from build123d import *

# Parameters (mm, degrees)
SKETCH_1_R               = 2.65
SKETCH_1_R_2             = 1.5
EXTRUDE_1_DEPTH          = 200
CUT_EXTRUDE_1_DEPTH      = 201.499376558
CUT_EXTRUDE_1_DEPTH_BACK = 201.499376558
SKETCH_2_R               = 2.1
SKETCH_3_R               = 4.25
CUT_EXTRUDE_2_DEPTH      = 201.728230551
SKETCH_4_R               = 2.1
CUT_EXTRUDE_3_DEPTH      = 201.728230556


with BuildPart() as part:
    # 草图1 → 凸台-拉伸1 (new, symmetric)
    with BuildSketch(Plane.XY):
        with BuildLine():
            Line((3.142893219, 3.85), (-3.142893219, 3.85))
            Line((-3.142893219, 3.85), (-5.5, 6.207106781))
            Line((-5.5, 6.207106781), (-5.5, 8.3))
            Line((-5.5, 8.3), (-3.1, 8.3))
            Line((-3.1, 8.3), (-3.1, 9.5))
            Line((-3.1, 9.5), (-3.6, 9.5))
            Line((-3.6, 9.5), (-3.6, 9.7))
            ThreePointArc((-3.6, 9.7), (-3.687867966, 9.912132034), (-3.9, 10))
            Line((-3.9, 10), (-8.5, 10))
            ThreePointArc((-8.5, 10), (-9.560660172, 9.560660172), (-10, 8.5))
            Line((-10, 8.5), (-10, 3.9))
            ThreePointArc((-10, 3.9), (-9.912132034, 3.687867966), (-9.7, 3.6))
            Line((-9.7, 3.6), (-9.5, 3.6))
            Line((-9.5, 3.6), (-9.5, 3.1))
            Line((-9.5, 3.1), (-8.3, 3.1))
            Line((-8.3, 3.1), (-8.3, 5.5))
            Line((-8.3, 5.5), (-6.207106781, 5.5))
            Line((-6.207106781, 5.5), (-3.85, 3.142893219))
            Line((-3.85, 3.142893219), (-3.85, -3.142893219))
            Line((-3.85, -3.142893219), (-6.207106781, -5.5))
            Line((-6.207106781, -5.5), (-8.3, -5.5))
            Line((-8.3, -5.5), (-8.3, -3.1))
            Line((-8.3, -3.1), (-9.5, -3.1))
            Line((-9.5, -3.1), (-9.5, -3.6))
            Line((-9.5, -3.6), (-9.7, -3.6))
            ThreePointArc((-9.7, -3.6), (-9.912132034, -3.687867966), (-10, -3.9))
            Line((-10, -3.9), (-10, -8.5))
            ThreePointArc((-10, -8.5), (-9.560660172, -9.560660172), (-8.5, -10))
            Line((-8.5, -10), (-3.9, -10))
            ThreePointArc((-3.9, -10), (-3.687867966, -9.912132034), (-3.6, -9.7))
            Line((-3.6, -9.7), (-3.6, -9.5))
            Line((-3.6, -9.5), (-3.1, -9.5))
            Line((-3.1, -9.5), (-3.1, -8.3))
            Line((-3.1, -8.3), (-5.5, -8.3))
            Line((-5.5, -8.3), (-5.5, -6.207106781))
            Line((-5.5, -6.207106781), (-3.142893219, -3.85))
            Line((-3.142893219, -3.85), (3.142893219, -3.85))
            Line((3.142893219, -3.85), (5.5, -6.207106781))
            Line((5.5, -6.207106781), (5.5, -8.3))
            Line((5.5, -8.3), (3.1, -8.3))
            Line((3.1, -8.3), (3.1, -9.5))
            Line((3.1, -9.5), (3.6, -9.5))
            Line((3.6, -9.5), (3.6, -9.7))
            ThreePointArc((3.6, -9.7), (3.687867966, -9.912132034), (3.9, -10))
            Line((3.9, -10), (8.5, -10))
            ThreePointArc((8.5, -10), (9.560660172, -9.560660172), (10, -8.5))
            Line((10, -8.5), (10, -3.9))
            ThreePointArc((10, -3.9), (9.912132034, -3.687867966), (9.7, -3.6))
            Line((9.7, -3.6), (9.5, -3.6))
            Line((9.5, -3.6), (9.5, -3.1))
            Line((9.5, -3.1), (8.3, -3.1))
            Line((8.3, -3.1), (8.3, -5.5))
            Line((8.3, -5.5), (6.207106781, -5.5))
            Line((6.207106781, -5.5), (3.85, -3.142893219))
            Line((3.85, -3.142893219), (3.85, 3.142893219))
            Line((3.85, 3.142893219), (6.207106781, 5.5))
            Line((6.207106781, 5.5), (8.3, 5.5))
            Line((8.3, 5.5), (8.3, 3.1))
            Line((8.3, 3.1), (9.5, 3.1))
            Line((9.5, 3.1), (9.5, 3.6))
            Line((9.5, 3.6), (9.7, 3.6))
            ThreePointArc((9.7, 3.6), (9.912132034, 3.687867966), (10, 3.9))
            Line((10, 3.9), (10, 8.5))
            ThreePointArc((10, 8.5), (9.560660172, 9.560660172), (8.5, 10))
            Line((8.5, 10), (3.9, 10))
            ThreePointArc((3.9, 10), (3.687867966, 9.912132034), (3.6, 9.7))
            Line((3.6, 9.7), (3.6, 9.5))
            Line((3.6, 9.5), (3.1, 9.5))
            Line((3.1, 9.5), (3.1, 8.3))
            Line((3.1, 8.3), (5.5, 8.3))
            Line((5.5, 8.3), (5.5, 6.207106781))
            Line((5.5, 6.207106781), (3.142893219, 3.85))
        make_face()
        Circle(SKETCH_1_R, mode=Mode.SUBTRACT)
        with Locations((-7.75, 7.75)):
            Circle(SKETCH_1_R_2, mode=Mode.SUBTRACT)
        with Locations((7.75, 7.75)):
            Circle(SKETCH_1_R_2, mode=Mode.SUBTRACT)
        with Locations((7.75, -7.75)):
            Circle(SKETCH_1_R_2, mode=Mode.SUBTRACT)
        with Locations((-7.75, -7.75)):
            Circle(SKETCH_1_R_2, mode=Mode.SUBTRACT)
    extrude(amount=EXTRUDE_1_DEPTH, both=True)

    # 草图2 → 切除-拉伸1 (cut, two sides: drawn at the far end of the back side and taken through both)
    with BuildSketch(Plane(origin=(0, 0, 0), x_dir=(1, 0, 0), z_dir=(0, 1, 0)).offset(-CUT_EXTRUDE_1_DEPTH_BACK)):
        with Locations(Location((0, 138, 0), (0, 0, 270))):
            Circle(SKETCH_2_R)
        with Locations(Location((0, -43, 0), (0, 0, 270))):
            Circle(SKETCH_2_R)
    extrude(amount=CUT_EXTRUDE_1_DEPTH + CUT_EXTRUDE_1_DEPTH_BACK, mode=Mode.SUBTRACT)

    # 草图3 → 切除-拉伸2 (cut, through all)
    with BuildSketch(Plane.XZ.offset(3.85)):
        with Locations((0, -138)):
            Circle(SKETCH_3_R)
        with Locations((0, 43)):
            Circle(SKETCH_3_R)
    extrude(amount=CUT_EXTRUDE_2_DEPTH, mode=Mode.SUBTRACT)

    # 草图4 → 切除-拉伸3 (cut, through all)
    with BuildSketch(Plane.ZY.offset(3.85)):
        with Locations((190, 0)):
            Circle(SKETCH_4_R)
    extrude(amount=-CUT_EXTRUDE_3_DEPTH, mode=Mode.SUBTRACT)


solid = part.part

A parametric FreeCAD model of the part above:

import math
import FreeCAD as App
import Part
import Sketcher

doc = App.newDocument("Part")
params = doc.addObject("Spreadsheet::Sheet", "Params")
for row, (alias, value) in enumerate([
    ("sketch1_diameter", "3 mm"),
    ("sketch1_diameter2", "5.3 mm"),
    ("sketch1_radius", "0.3 mm"),
    ("sketch1_width", "2.4 mm"),
    ("sketch1_width2", "0.5 mm"),
    ("pad1_length", "400 mm"),
    ("sketch2_diameter", "4.2 mm"),
    ("sketch3_diameter", "8.5 mm"),
    ("sketch4_diameter", "4.2 mm"),
], start=1):
    params.set(f"A{row}", alias)
    params.set(f"B{row}", "=" + value)
    params.setAlias(f"B{row}", alias)

body = doc.addObject("PartDesign::Body", "Body")

sketch1 = body.newObject("Sketcher::SketchObject", "Sketch")
sketch1.AttachmentSupport = (doc.getObject("XY_Plane"), [""])
sketch1.MapMode = "FlatFace"
sketch1.addGeometry(Part.LineSegment(App.Vector(3.142893, 3.85, 0), App.Vector(-3.142893, 3.85, 0)), False)
sketch1.addGeometry(Part.LineSegment(App.Vector(-3.142893, 3.85, 0), App.Vector(-5.5, 6.207107, 0)), False)
sketch1.addGeometry(Part.LineSegment(App.Vector(-5.5, 6.207107, 0), App.Vector(-5.5, 8.3, 0)), False)
sketch1.addGeometry(Part.LineSegment(App.Vector(-5.5, 8.3, 0), App.Vector(-3.1, 8.3, 0)), False)
sketch1.addGeometry(Part.LineSegment(App.Vector(-3.1, 8.3, 0), App.Vector(-3.1, 9.5, 0)), False)
sketch1.addGeometry(Part.LineSegment(App.Vector(-3.1, 9.5, 0), App.Vector(-3.6, 9.5, 0)), False)
sketch1.addGeometry(Part.LineSegment(App.Vector(-3.6, 9.5, 0), App.Vector(-3.6, 9.7, 0)), False)
sketch1.addGeometry(Part.ArcOfCircle(Part.Circle(App.Vector(-3.9, 9.7, 0), App.Vector(0, 0, 1), 0.3), math.radians(0), math.radians(90)), False)
sketch1.addGeometry(Part.LineSegment(App.Vector(-3.9, 10, 0), App.Vector(-8.5, 10, 0)), False)
sketch1.addGeometry(Part.ArcOfCircle(Part.Circle(App.Vector(-8.5, 8.5, 0), App.Vector(0, 0, 1), 1.5), math.radians(90), math.radians(180)), False)
sketch1.addGeometry(Part.LineSegment(App.Vector(-10, 8.5, 0), App.Vector(-10, 3.9, 0)), False)
sketch1.addGeometry(Part.ArcOfCircle(Part.Circle(App.Vector(-9.7, 3.9, 0), App.Vector(0, 0, 1), 0.3), math.radians(-180), math.radians(-90)), False)
sketch1.addGeometry(Part.LineSegment(App.Vector(-9.7, 3.6, 0), App.Vector(-9.5, 3.6, 0)), False)
sketch1.addGeometry(Part.LineSegment(App.Vector(-9.5, 3.6, 0), App.Vector(-9.5, 3.1, 0)), False)
sketch1.addGeometry(Part.LineSegment(App.Vector(-9.5, 3.1, 0), App.Vector(-8.3, 3.1, 0)), False)
sketch1.addGeometry(Part.LineSegment(App.Vector(-8.3, 3.1, 0), App.Vector(-8.3, 5.5, 0)), False)
sketch1.addGeometry(Part.LineSegment(App.Vector(-8.3, 5.5, 0), App.Vector(-6.207107, 5.5, 0)), False)
sketch1.addGeometry(Part.LineSegment(App.Vector(-6.207107, 5.5, 0), App.Vector(-3.85, 3.142893, 0)), False)
sketch1.addGeometry(Part.LineSegment(App.Vector(-3.85, 3.142893, 0), App.Vector(-3.85, -3.142893, 0)), False)
sketch1.addGeometry(Part.LineSegment(App.Vector(-3.85, -3.142893, 0), App.Vector(-6.207107, -5.5, 0)), False)
sketch1.addGeometry(Part.LineSegment(App.Vector(-6.207107, -5.5, 0), App.Vector(-8.3, -5.5, 0)), False)
sketch1.addGeometry(Part.LineSegment(App.Vector(-8.3, -5.5, 0), App.Vector(-8.3, -3.1, 0)), False)
sketch1.addGeometry(Part.LineSegment(App.Vector(-8.3, -3.1, 0), App.Vector(-9.5, -3.1, 0)), False)
sketch1.addGeometry(Part.LineSegment(App.Vector(-9.5, -3.1, 0), App.Vector(-9.5, -3.6, 0)), False)
sketch1.addGeometry(Part.LineSegment(App.Vector(-9.5, -3.6, 0), App.Vector(-9.7, -3.6, 0)), False)
sketch1.addGeometry(Part.ArcOfCircle(Part.Circle(App.Vector(-9.7, -3.9, 0), App.Vector(0, 0, 1), 0.3), math.radians(90), math.radians(180)), False)
sketch1.addGeometry(Part.LineSegment(App.Vector(-10, -3.9, 0), App.Vector(-10, -8.5, 0)), False)
sketch1.addGeometry(Part.ArcOfCircle(Part.Circle(App.Vector(-8.5, -8.5, 0), App.Vector(0, 0, 1), 1.5), math.radians(180), math.radians(270)), False)
sketch1.addGeometry(Part.LineSegment(App.Vector(-8.5, -10, 0), App.Vector(-3.9, -10, 0)), False)
sketch1.addGeometry(Part.ArcOfCircle(Part.Circle(App.Vector(-3.9, -9.7, 0), App.Vector(0, 0, 1), 0.3), math.radians(-90), math.radians(0)), False)
sketch1.addGeometry(Part.LineSegment(App.Vector(-3.6, -9.7, 0), App.Vector(-3.6, -9.5, 0)), False)
sketch1.addGeometry(Part.LineSegment(App.Vector(-3.6, -9.5, 0), App.Vector(-3.1, -9.5, 0)), False)
sketch1.addGeometry(Part.LineSegment(App.Vector(-3.1, -9.5, 0), App.Vector(-3.1, -8.3, 0)), False)
sketch1.addGeometry(Part.LineSegment(App.Vector(-3.1, -8.3, 0), App.Vector(-5.5, -8.3, 0)), False)
sketch1.addGeometry(Part.LineSegment(App.Vector(-5.5, -8.3, 0), App.Vector(-5.5, -6.207107, 0)), False)
sketch1.addGeometry(Part.LineSegment(App.Vector(-5.5, -6.207107, 0), App.Vector(-3.142893, -3.85, 0)), False)
sketch1.addGeometry(Part.LineSegment(App.Vector(-3.142893, -3.85, 0), App.Vector(3.142893, -3.85, 0)), False)
sketch1.addGeometry(Part.LineSegment(App.Vector(3.142893, -3.85, 0), App.Vector(5.5, -6.207107, 0)), False)
sketch1.addGeometry(Part.LineSegment(App.Vector(5.5, -6.207107, 0), App.Vector(5.5, -8.3, 0)), False)
sketch1.addGeometry(Part.LineSegment(App.Vector(5.5, -8.3, 0), App.Vector(3.1, -8.3, 0)), False)
sketch1.addGeometry(Part.LineSegment(App.Vector(3.1, -8.3, 0), App.Vector(3.1, -9.5, 0)), False)
sketch1.addGeometry(Part.LineSegment(App.Vector(3.1, -9.5, 0), App.Vector(3.6, -9.5, 0)), False)
sketch1.addGeometry(Part.LineSegment(App.Vector(3.6, -9.5, 0), App.Vector(3.6, -9.7, 0)), False)
sketch1.addGeometry(Part.ArcOfCircle(Part.Circle(App.Vector(3.9, -9.7, 0), App.Vector(0, 0, 1), 0.3), math.radians(-180), math.radians(-90)), False)
sketch1.addGeometry(Part.LineSegment(App.Vector(3.9, -10, 0), App.Vector(8.5, -10, 0)), False)
sketch1.addGeometry(Part.ArcOfCircle(Part.Circle(App.Vector(8.5, -8.5, 0), App.Vector(0, 0, 1), 1.5), math.radians(-90), math.radians(0)), False)
sketch1.addGeometry(Part.LineSegment(App.Vector(10, -8.5, 0), App.Vector(10, -3.9, 0)), False)
sketch1.addGeometry(Part.ArcOfCircle(Part.Circle(App.Vector(9.7, -3.9, 0), App.Vector(0, 0, 1), 0.3), math.radians(0), math.radians(90)), False)
sketch1.addGeometry(Part.LineSegment(App.Vector(9.7, -3.6, 0), App.Vector(9.5, -3.6, 0)), False)
sketch1.addGeometry(Part.LineSegment(App.Vector(9.5, -3.6, 0), App.Vector(9.5, -3.1, 0)), False)
sketch1.addGeometry(Part.LineSegment(App.Vector(9.5, -3.1, 0), App.Vector(8.3, -3.1, 0)), False)
sketch1.addGeometry(Part.LineSegment(App.Vector(8.3, -3.1, 0), App.Vector(8.3, -5.5, 0)), False)
sketch1.addGeometry(Part.LineSegment(App.Vector(8.3, -5.5, 0), App.Vector(6.207107, -5.5, 0)), False)
sketch1.addGeometry(Part.LineSegment(App.Vector(6.207107, -5.5, 0), App.Vector(3.85, -3.142893, 0)), False)
sketch1.addGeometry(Part.LineSegment(App.Vector(3.85, -3.142893, 0), App.Vector(3.85, 3.142893, 0)), False)
sketch1.addGeometry(Part.LineSegment(App.Vector(3.85, 3.142893, 0), App.Vector(6.207107, 5.5, 0)), False)
sketch1.addGeometry(Part.LineSegment(App.Vector(6.207107, 5.5, 0), App.Vector(8.3, 5.5, 0)), False)
sketch1.addGeometry(Part.LineSegment(App.Vector(8.3, 5.5, 0), App.Vector(8.3, 3.1, 0)), False)
sketch1.addGeometry(Part.LineSegment(App.Vector(8.3, 3.1, 0), App.Vector(9.5, 3.1, 0)), False)
sketch1.addGeometry(Part.LineSegment(App.Vector(9.5, 3.1, 0), App.Vector(9.5, 3.6, 0)), False)
sketch1.addGeometry(Part.LineSegment(App.Vector(9.5, 3.6, 0), App.Vector(9.7, 3.6, 0)), False)
sketch1.addGeometry(Part.ArcOfCircle(Part.Circle(App.Vector(9.7, 3.9, 0), App.Vector(0, 0, 1), 0.3), math.radians(-90), math.radians(0)), False)
sketch1.addGeometry(Part.LineSegment(App.Vector(10, 3.9, 0), App.Vector(10, 8.5, 0)), False)
sketch1.addGeometry(Part.ArcOfCircle(Part.Circle(App.Vector(8.5, 8.5, 0), App.Vector(0, 0, 1), 1.5), math.radians(0), math.radians(90)), False)
sketch1.addGeometry(Part.LineSegment(App.Vector(8.5, 10, 0), App.Vector(3.9, 10, 0)), False)
sketch1.addGeometry(Part.ArcOfCircle(Part.Circle(App.Vector(3.9, 9.7, 0), App.Vector(0, 0, 1), 0.3), math.radians(90), math.radians(180)), False)
sketch1.addGeometry(Part.LineSegment(App.Vector(3.6, 9.7, 0), App.Vector(3.6, 9.5, 0)), False)
sketch1.addGeometry(Part.LineSegment(App.Vector(3.6, 9.5, 0), App.Vector(3.1, 9.5, 0)), False)
sketch1.addGeometry(Part.LineSegment(App.Vector(3.1, 9.5, 0), App.Vector(3.1, 8.3, 0)), False)
sketch1.addGeometry(Part.LineSegment(App.Vector(3.1, 8.3, 0), App.Vector(5.5, 8.3, 0)), False)
sketch1.addGeometry(Part.LineSegment(App.Vector(5.5, 8.3, 0), App.Vector(5.5, 6.207107, 0)), False)
sketch1.addGeometry(Part.LineSegment(App.Vector(5.5, 6.207107, 0), App.Vector(3.142893, 3.85, 0)), False)
sketch1.addGeometry(Part.Circle(App.Vector(-7.75, -7.75, 0), App.Vector(0, 0, 1), 1.5), False)
sketch1.addGeometry(Part.Circle(App.Vector(7.75, -7.75, 0), App.Vector(0, 0, 1), 1.5), False)
sketch1.addGeometry(Part.Circle(App.Vector(-7.75, 7.75, 0), App.Vector(0, 0, 1), 1.5), False)
sketch1.addGeometry(Part.Circle(App.Vector(0, 0, 0), App.Vector(0, 0, 1), 2.65), False)
sketch1.addGeometry(Part.Circle(App.Vector(7.75, 7.75, 0), App.Vector(0, 0, 1), 1.5), False)
sketch1.addConstraint(Sketcher.Constraint("Coincident", 0, 2, 1, 1))
sketch1.addConstraint(Sketcher.Constraint("Coincident", 1, 2, 2, 1))
sketch1.addConstraint(Sketcher.Constraint("Coincident", 2, 2, 3, 1))
sketch1.addConstraint(Sketcher.Constraint("Coincident", 3, 2, 4, 1))
sketch1.addConstraint(Sketcher.Constraint("Coincident", 4, 2, 5, 1))
sketch1.addConstraint(Sketcher.Constraint("Coincident", 5, 2, 6, 1))
sketch1.addConstraint(Sketcher.Constraint("Tangent", 6, 2, 7, 1))
sketch1.addConstraint(Sketcher.Constraint("Tangent", 7, 2, 8, 1))
sketch1.addConstraint(Sketcher.Constraint("Tangent", 8, 2, 9, 1))
sketch1.addConstraint(Sketcher.Constraint("Tangent", 9, 2, 10, 1))
sketch1.addConstraint(Sketcher.Constraint("Tangent", 10, 2, 11, 1))
sketch1.addConstraint(Sketcher.Constraint("Tangent", 11, 2, 12, 1))
sketch1.addConstraint(Sketcher.Constraint("Coincident", 12, 2, 13, 1))
sketch1.addConstraint(Sketcher.Constraint("Coincident", 13, 2, 14, 1))
sketch1.addConstraint(Sketcher.Constraint("Coincident", 14, 2, 15, 1))
sketch1.addConstraint(Sketcher.Constraint("Coincident", 15, 2, 16, 1))
sketch1.addConstraint(Sketcher.Constraint("Coincident", 16, 2, 17, 1))
sketch1.addConstraint(Sketcher.Constraint("Coincident", 17, 2, 18, 1))
sketch1.addConstraint(Sketcher.Constraint("Coincident", 18, 2, 19, 1))
sketch1.addConstraint(Sketcher.Constraint("Coincident", 19, 2, 20, 1))
sketch1.addConstraint(Sketcher.Constraint("Coincident", 20, 2, 21, 1))
sketch1.addConstraint(Sketcher.Constraint("Coincident", 21, 2, 22, 1))
sketch1.addConstraint(Sketcher.Constraint("Coincident", 22, 2, 23, 1))
sketch1.addConstraint(Sketcher.Constraint("Coincident", 23, 2, 24, 1))
sketch1.addConstraint(Sketcher.Constraint("Tangent", 24, 2, 25, 1))
sketch1.addConstraint(Sketcher.Constraint("Tangent", 25, 2, 26, 1))
sketch1.addConstraint(Sketcher.Constraint("Tangent", 26, 2, 27, 1))
sketch1.addConstraint(Sketcher.Constraint("Tangent", 27, 2, 28, 1))
sketch1.addConstraint(Sketcher.Constraint("Tangent", 28, 2, 29, 1))
sketch1.addConstraint(Sketcher.Constraint("Tangent", 29, 2, 30, 1))
sketch1.addConstraint(Sketcher.Constraint("Coincident", 30, 2, 31, 1))
sketch1.addConstraint(Sketcher.Constraint("Coincident", 31, 2, 32, 1))
sketch1.addConstraint(Sketcher.Constraint("Coincident", 32, 2, 33, 1))
sketch1.addConstraint(Sketcher.Constraint("Coincident", 33, 2, 34, 1))
sketch1.addConstraint(Sketcher.Constraint("Coincident", 34, 2, 35, 1))
sketch1.addConstraint(Sketcher.Constraint("Coincident", 35, 2, 36, 1))
sketch1.addConstraint(Sketcher.Constraint("Coincident", 36, 2, 37, 1))
sketch1.addConstraint(Sketcher.Constraint("Coincident", 37, 2, 38, 1))
sketch1.addConstraint(Sketcher.Constraint("Coincident", 38, 2, 39, 1))
sketch1.addConstraint(Sketcher.Constraint("Coincident", 39, 2, 40, 1))
sketch1.addConstraint(Sketcher.Constraint("Coincident", 40, 2, 41, 1))
sketch1.addConstraint(Sketcher.Constraint("Coincident", 41, 2, 42, 1))
sketch1.addConstraint(Sketcher.Constraint("Tangent", 42, 2, 43, 1))
sketch1.addConstraint(Sketcher.Constraint("Tangent", 43, 2, 44, 1))
sketch1.addConstraint(Sketcher.Constraint("Tangent", 44, 2, 45, 1))
sketch1.addConstraint(Sketcher.Constraint("Tangent", 45, 2, 46, 1))
sketch1.addConstraint(Sketcher.Constraint("Tangent", 46, 2, 47, 1))
sketch1.addConstraint(Sketcher.Constraint("Tangent", 47, 2, 48, 1))
sketch1.addConstraint(Sketcher.Constraint("Coincident", 48, 2, 49, 1))
sketch1.addConstraint(Sketcher.Constraint("Coincident", 49, 2, 50, 1))
sketch1.addConstraint(Sketcher.Constraint("Coincident", 50, 2, 51, 1))
sketch1.addConstraint(Sketcher.Constraint("Coincident", 51, 2, 52, 1))
sketch1.addConstraint(Sketcher.Constraint("Coincident", 52, 2, 53, 1))
sketch1.addConstraint(Sketcher.Constraint("Coincident", 53, 2, 54, 1))
sketch1.addConstraint(Sketcher.Constraint("Coincident", 54, 2, 55, 1))
sketch1.addConstraint(Sketcher.Constraint("Coincident", 55, 2, 56, 1))
sketch1.addConstraint(Sketcher.Constraint("Coincident", 56, 2, 57, 1))
sketch1.addConstraint(Sketcher.Constraint("Coincident", 57, 2, 58, 1))
sketch1.addConstraint(Sketcher.Constraint("Coincident", 58, 2, 59, 1))
sketch1.addConstraint(Sketcher.Constraint("Coincident", 59, 2, 60, 1))
sketch1.addConstraint(Sketcher.Constraint("Tangent", 60, 2, 61, 1))
sketch1.addConstraint(Sketcher.Constraint("Tangent", 61, 2, 62, 1))
sketch1.addConstraint(Sketcher.Constraint("Tangent", 62, 2, 63, 1))
sketch1.addConstraint(Sketcher.Constraint("Tangent", 63, 2, 64, 1))
sketch1.addConstraint(Sketcher.Constraint("Tangent", 64, 2, 65, 1))
sketch1.addConstraint(Sketcher.Constraint("Tangent", 65, 2, 66, 1))
sketch1.addConstraint(Sketcher.Constraint("Coincident", 66, 2, 67, 1))
sketch1.addConstraint(Sketcher.Constraint("Coincident", 67, 2, 68, 1))
sketch1.addConstraint(Sketcher.Constraint("Coincident", 68, 2, 69, 1))
sketch1.addConstraint(Sketcher.Constraint("Coincident", 69, 2, 70, 1))
sketch1.addConstraint(Sketcher.Constraint("Coincident", 70, 2, 71, 1))
sketch1.addConstraint(Sketcher.Constraint("Coincident", 71, 2, 0, 1))
sketch1.addConstraint(Sketcher.Constraint("Horizontal", 0))
sketch1.addConstraint(Sketcher.Constraint("Vertical", 2))
sketch1.addConstraint(Sketcher.Constraint("Horizontal", 3))
sketch1.addConstraint(Sketcher.Constraint("Vertical", 4))
sketch1.addConstraint(Sketcher.Constraint("Horizontal", 5))
sketch1.addConstraint(Sketcher.Constraint("Vertical", 6))
sketch1.addConstraint(Sketcher.Constraint("Horizontal", 8))
sketch1.addConstraint(Sketcher.Constraint("Vertical", 10))
sketch1.addConstraint(Sketcher.Constraint("Horizontal", 12))
sketch1.addConstraint(Sketcher.Constraint("Vertical", 13))
sketch1.addConstraint(Sketcher.Constraint("Horizontal", 14))
sketch1.addConstraint(Sketcher.Constraint("Vertical", 15))
sketch1.addConstraint(Sketcher.Constraint("Horizontal", 16))
sketch1.addConstraint(Sketcher.Constraint("Vertical", 18))
sketch1.addConstraint(Sketcher.Constraint("Horizontal", 20))
sketch1.addConstraint(Sketcher.Constraint("Vertical", 21))
sketch1.addConstraint(Sketcher.Constraint("Horizontal", 22))
sketch1.addConstraint(Sketcher.Constraint("Vertical", 23))
sketch1.addConstraint(Sketcher.Constraint("Horizontal", 24))
sketch1.addConstraint(Sketcher.Constraint("Vertical", 26))
sketch1.addConstraint(Sketcher.Constraint("Horizontal", 28))
sketch1.addConstraint(Sketcher.Constraint("Vertical", 30))
sketch1.addConstraint(Sketcher.Constraint("Horizontal", 31))
sketch1.addConstraint(Sketcher.Constraint("Vertical", 32))
sketch1.addConstraint(Sketcher.Constraint("Horizontal", 33))
sketch1.addConstraint(Sketcher.Constraint("Vertical", 34))
sketch1.addConstraint(Sketcher.Constraint("Horizontal", 36))
sketch1.addConstraint(Sketcher.Constraint("Vertical", 38))
sketch1.addConstraint(Sketcher.Constraint("Horizontal", 39))
sketch1.addConstraint(Sketcher.Constraint("Vertical", 40))
sketch1.addConstraint(Sketcher.Constraint("Horizontal", 41))
sketch1.addConstraint(Sketcher.Constraint("Vertical", 42))
sketch1.addConstraint(Sketcher.Constraint("Horizontal", 44))
sketch1.addConstraint(Sketcher.Constraint("Vertical", 46))
sketch1.addConstraint(Sketcher.Constraint("Horizontal", 48))
sketch1.addConstraint(Sketcher.Constraint("Vertical", 49))
sketch1.addConstraint(Sketcher.Constraint("Horizontal", 50))
sketch1.addConstraint(Sketcher.Constraint("Vertical", 51))
sketch1.addConstraint(Sketcher.Constraint("Horizontal", 52))
sketch1.addConstraint(Sketcher.Constraint("Vertical", 54))
sketch1.addConstraint(Sketcher.Constraint("Horizontal", 56))
sketch1.addConstraint(Sketcher.Constraint("Vertical", 57))
sketch1.addConstraint(Sketcher.Constraint("Horizontal", 58))
sketch1.addConstraint(Sketcher.Constraint("Vertical", 59))
sketch1.addConstraint(Sketcher.Constraint("Horizontal", 60))
sketch1.addConstraint(Sketcher.Constraint("Vertical", 62))
sketch1.addConstraint(Sketcher.Constraint("Horizontal", 64))
sketch1.addConstraint(Sketcher.Constraint("Vertical", 66))
sketch1.addConstraint(Sketcher.Constraint("Horizontal", 67))
sketch1.addConstraint(Sketcher.Constraint("Vertical", 68))
sketch1.addConstraint(Sketcher.Constraint("Horizontal", 69))
sketch1.addConstraint(Sketcher.Constraint("Vertical", 70))
sketch1.addConstraint(Sketcher.Constraint("Coincident", 75, 3, -1, 1))
sketch1.addConstraint(Sketcher.Constraint("Equal", 7, 11))
sketch1.addConstraint(Sketcher.Constraint("Equal", 11, 25))
sketch1.addConstraint(Sketcher.Constraint("Equal", 9, 27))
sketch1.addConstraint(Sketcher.Constraint("Equal", 25, 29))
sketch1.addConstraint(Sketcher.Constraint("Equal", 29, 43))
sketch1.addConstraint(Sketcher.Constraint("Equal", 27, 45))
sketch1.addConstraint(Sketcher.Constraint("Equal", 43, 47))
sketch1.addConstraint(Sketcher.Constraint("Equal", 47, 61))
sketch1.addConstraint(Sketcher.Constraint("Equal", 45, 63))
sketch1.addConstraint(Sketcher.Constraint("Equal", 61, 65))
sketch1.addConstraint(Sketcher.Constraint("Equal", 63, 72))
sketch1.addConstraint(Sketcher.Constraint("Equal", 72, 73))
sketch1.addConstraint(Sketcher.Constraint("Equal", 73, 74))
sketch1.addConstraint(Sketcher.Constraint("Equal", 74, 76))
sketch1.addConstraint(Sketcher.Constraint("Symmetric", 7, 3, 43, 3, -1, 1))
sketch1.addConstraint(Sketcher.Constraint("Symmetric", 11, 3, 47, 3, -1, 1))
sketch1.addConstraint(Sketcher.Constraint("Symmetric", 25, 3, 61, 3, -1, 1))
sketch1.addConstraint(Sketcher.Constraint("Symmetric", 29, 3, 65, 3, -1, 1))
sketch1.addConstraint(Sketcher.Constraint("Symmetric", 73, 3, 74, 3, -1, 1))
sketch1.addConstraint(Sketcher.Constraint("Symmetric", 72, 3, 76, 3, -1, 1))
sketch1.addConstraint(Sketcher.Constraint("Symmetric", 0, 2, 36, 2, -1, 1))
sketch1.addConstraint(Sketcher.Constraint("Symmetric", 1, 2, 37, 2, -1, 1))
sketch1.addConstraint(Sketcher.Constraint("Symmetric", 3, 2, 39, 2, -1, 1))
sketch1.addConstraint(Sketcher.Constraint("Symmetric", 13, 2, 49, 2, -1, 1))
sketch1.addConstraint(Sketcher.Constraint("Symmetric", 15, 2, 51, 2, -1, 1))
sketch1.addConstraint(Sketcher.Constraint("Symmetric", 17, 2, 53, 2, -1, 1))
sketch1.addConstraint(Sketcher.Constraint("Symmetric", 19, 2, 55, 2, -1, 1))
sketch1.addConstraint(Sketcher.Constraint("Symmetric", 21, 2, 57, 2, -1, 1))
sketch1.addConstraint(Sketcher.Constraint("Symmetric", 31, 2, 67, 2, -1, 1))
sketch1.addConstraint(Sketcher.Constraint("Symmetric", 33, 2, 69, 2, -1, 1))
sketch1.addConstraint(Sketcher.Constraint("Symmetric", 29, 3, 43, 3, -2))
sketch1.addConstraint(Sketcher.Constraint("Symmetric", 25, 3, 47, 3, -2))
sketch1.addConstraint(Sketcher.Constraint("Symmetric", 72, 3, 73, 3, -2))
sketch1.addConstraint(Sketcher.Constraint("Symmetric", 34, 2, 37, 2, -2))
sketch1.addConstraint(Sketcher.Constraint("Symmetric", 32, 2, 39, 2, -2))
sketch1.addConstraint(Sketcher.Constraint("Symmetric", 22, 2, 49, 2, -2))
sketch1.addConstraint(Sketcher.Constraint("Symmetric", 20, 2, 51, 2, -2))
sketch1.addConstraint(Sketcher.Constraint("Parallel", 1, 17))
sketch1.addConstraint(Sketcher.Constraint("Perpendicular", 17, 19))
sketch1.addConstraint(Sketcher.Constraint("Parallel", 19, 35))
sketch1.addConstraint(Sketcher.Constraint("Parallel", 37, 53))
sketch1.addConstraint(Sketcher.Constraint("Perpendicular", 53, 55))
sketch1.addConstraint(Sketcher.Constraint("Parallel", 55, 71))
sketch1.addConstraint(Sketcher.Constraint("Horizontal", 31, 2, 40, 2))
sketch1.addConstraint(Sketcher.Constraint("Horizontal", 18, 2, 53, 2))
sketch1.addConstraint(Sketcher.Constraint("Horizontal", 5, 2, 66, 2))
sketch1.addConstraint(Sketcher.Constraint("Horizontal", 1, 2, 70, 2))
sketch1.addConstraint(Sketcher.Constraint("Vertical", 16, 2, 19, 2))
sketch1.addConstraint(Sketcher.Constraint("Vertical", 49, 2, 58, 2))
sketch1.addConstraint(Sketcher.Constraint("Equal", 56, 2))
sketch1.addConstraint(Sketcher.Constraint("Equal", 58, 4))
sketch1.addConstraint(Sketcher.Constraint("Equal", 60, 6))
sketch1.addConstraint(Sketcher.Constraint("Equal", 64, 10))
sketch1.addConstraint(Sketcher.Constraint("Equal", 67, 13))
sketch1.addConstraint(Sketcher.Constraint("Equal", 69, 15))
sketch1.addConstraint(Sketcher.Constraint("Equal", 36, 18))
sketch1.addConstraint(Sketcher.Constraint("Equal", 1, 17))
sketch1.addConstraint(Sketcher.Constraint("Diameter", 72, 3.0))
sketch1.addConstraint(Sketcher.Constraint("Diameter", 75, 5.3))
sketch1.addConstraint(Sketcher.Constraint("Radius", 7, 0.3))
sketch1.addConstraint(Sketcher.Constraint("DistanceX", 3, 1, 3, 2, 2.4))
sketch1.addConstraint(Sketcher.Constraint("DistanceX", 5, 2, 5, 1, 0.5))
sketch1.addConstraint(Sketcher.Constraint("DistanceX", 8, 2, 8, 1, 4.6))
sketch1.addConstraint(Sketcher.Constraint("DistanceX", 12, 1, 12, 2, 0.2))
sketch1.addConstraint(Sketcher.Constraint("DistanceX", 14, 1, 14, 2, 1.2))
sketch1.addConstraint(Sketcher.Constraint("DistanceY", -1, 1, 7, 2, 10.0))
sketch1.addConstraint(Sketcher.Constraint("DistanceX", 72, 3, -1, 1, 7.75))
sketch1.addConstraint(Sketcher.Constraint("DistanceY", 72, 3, -1, 1, 7.75))
sketch1.addConstraint(Sketcher.Constraint("DistanceY", -1, 1, 0, 2, 3.85))
sketch1.addConstraint(Sketcher.Constraint("DistanceX", 0, 2, 0, 1, 6.285786))
sketch1.setExpression("Constraints[182]", "Params.sketch1_diameter")
sketch1.setExpression("Constraints[183]", "Params.sketch1_diameter2")
sketch1.setExpression("Constraints[184]", "Params.sketch1_radius")
sketch1.setExpression("Constraints[185]", "Params.sketch1_width")
sketch1.setExpression("Constraints[186]", "Params.sketch1_width2")
pad1 = body.newObject("PartDesign::Pad", "Pad")
pad1.Profile = sketch1
pad1.setExpression("Length", "Params.pad1_length")
pad1.Midplane = True

sketch2 = body.newObject("Sketcher::SketchObject", "Sketch001")
sketch2.AttachmentSupport = (doc.getObject("XZ_Plane"), [""])
sketch2.MapMode = "FlatFace"
sketch2.addGeometry(Part.Circle(App.Vector(0, -138, 0), App.Vector(0, 0, 1), 2.1), False)
sketch2.addGeometry(Part.Circle(App.Vector(0, 43, 0), App.Vector(0, 0, 1), 2.1), False)
sketch2.addConstraint(Sketcher.Constraint("Equal", 0, 1))
sketch2.addConstraint(Sketcher.Constraint("PointOnObject", 0, 3, -2))
sketch2.addConstraint(Sketcher.Constraint("PointOnObject", 1, 3, -2))
sketch2.addConstraint(Sketcher.Constraint("Diameter", 0, 4.2))
sketch2.addConstraint(Sketcher.Constraint("DistanceY", 0, 3, -1, 1, 138.0))
sketch2.addConstraint(Sketcher.Constraint("DistanceY", -1, 1, 1, 3, 43.0))
sketch2.setExpression("Constraints[3]", "Params.sketch2_diameter")
pocket1 = body.newObject("PartDesign::Pocket", "Pocket")
pocket1.Profile = sketch2
pocket1.Type = "ThroughAll"
pocket1.Midplane = True

sketch3 = body.newObject("Sketcher::SketchObject", "Sketch002")
sketch3.AttachmentSupport = (doc.getObject("XZ_Plane"), [""])
sketch3.MapMode = "FlatFace"
sketch3.AttachmentOffset = App.Placement(App.Vector(0, 0, 3.85), App.Rotation())
sketch3.addGeometry(Part.Circle(App.Vector(0, -138, 0), App.Vector(0, 0, 1), 4.25), False)
sketch3.addGeometry(Part.Circle(App.Vector(0, 43, 0), App.Vector(0, 0, 1), 4.25), False)
sketch3.addConstraint(Sketcher.Constraint("Equal", 0, 1))
sketch3.addConstraint(Sketcher.Constraint("PointOnObject", 0, 3, -2))
sketch3.addConstraint(Sketcher.Constraint("PointOnObject", 1, 3, -2))
sketch3.addConstraint(Sketcher.Constraint("Diameter", 0, 8.5))
sketch3.addConstraint(Sketcher.Constraint("DistanceY", 0, 3, -1, 1, 138.0))
sketch3.addConstraint(Sketcher.Constraint("DistanceY", -1, 1, 1, 3, 43.0))
sketch3.setExpression("Constraints[3]", "Params.sketch3_diameter")
pocket2 = body.newObject("PartDesign::Pocket", "Pocket001")
pocket2.Profile = sketch3
pocket2.Type = "ThroughAll"
pocket2.Reversed = True

sketch4 = body.newObject("Sketcher::SketchObject", "Sketch003")
sketch4.AttachmentSupport = (doc.getObject("YZ_Plane"), [""])
sketch4.MapMode = "FlatFace"
sketch4.AttachmentOffset = App.Placement(App.Vector(0, 0, -3.85), App.Rotation())
sketch4.addGeometry(Part.Circle(App.Vector(0, 190, 0), App.Vector(0, 0, 1), 2.1), False)
sketch4.addConstraint(Sketcher.Constraint("PointOnObject", 0, 3, -2))
sketch4.addConstraint(Sketcher.Constraint("Diameter", 0, 4.2))
sketch4.addConstraint(Sketcher.Constraint("DistanceY", -1, 1, 0, 3, 190.0))
sketch4.setExpression("Constraints[1]", "Params.sketch4_diameter")
pocket3 = body.newObject("PartDesign::Pocket", "Pocket002")
pocket3.Profile = sketch4
pocket3.Type = "ThroughAll"
pocket3.Reversed = True

doc.recompute()
